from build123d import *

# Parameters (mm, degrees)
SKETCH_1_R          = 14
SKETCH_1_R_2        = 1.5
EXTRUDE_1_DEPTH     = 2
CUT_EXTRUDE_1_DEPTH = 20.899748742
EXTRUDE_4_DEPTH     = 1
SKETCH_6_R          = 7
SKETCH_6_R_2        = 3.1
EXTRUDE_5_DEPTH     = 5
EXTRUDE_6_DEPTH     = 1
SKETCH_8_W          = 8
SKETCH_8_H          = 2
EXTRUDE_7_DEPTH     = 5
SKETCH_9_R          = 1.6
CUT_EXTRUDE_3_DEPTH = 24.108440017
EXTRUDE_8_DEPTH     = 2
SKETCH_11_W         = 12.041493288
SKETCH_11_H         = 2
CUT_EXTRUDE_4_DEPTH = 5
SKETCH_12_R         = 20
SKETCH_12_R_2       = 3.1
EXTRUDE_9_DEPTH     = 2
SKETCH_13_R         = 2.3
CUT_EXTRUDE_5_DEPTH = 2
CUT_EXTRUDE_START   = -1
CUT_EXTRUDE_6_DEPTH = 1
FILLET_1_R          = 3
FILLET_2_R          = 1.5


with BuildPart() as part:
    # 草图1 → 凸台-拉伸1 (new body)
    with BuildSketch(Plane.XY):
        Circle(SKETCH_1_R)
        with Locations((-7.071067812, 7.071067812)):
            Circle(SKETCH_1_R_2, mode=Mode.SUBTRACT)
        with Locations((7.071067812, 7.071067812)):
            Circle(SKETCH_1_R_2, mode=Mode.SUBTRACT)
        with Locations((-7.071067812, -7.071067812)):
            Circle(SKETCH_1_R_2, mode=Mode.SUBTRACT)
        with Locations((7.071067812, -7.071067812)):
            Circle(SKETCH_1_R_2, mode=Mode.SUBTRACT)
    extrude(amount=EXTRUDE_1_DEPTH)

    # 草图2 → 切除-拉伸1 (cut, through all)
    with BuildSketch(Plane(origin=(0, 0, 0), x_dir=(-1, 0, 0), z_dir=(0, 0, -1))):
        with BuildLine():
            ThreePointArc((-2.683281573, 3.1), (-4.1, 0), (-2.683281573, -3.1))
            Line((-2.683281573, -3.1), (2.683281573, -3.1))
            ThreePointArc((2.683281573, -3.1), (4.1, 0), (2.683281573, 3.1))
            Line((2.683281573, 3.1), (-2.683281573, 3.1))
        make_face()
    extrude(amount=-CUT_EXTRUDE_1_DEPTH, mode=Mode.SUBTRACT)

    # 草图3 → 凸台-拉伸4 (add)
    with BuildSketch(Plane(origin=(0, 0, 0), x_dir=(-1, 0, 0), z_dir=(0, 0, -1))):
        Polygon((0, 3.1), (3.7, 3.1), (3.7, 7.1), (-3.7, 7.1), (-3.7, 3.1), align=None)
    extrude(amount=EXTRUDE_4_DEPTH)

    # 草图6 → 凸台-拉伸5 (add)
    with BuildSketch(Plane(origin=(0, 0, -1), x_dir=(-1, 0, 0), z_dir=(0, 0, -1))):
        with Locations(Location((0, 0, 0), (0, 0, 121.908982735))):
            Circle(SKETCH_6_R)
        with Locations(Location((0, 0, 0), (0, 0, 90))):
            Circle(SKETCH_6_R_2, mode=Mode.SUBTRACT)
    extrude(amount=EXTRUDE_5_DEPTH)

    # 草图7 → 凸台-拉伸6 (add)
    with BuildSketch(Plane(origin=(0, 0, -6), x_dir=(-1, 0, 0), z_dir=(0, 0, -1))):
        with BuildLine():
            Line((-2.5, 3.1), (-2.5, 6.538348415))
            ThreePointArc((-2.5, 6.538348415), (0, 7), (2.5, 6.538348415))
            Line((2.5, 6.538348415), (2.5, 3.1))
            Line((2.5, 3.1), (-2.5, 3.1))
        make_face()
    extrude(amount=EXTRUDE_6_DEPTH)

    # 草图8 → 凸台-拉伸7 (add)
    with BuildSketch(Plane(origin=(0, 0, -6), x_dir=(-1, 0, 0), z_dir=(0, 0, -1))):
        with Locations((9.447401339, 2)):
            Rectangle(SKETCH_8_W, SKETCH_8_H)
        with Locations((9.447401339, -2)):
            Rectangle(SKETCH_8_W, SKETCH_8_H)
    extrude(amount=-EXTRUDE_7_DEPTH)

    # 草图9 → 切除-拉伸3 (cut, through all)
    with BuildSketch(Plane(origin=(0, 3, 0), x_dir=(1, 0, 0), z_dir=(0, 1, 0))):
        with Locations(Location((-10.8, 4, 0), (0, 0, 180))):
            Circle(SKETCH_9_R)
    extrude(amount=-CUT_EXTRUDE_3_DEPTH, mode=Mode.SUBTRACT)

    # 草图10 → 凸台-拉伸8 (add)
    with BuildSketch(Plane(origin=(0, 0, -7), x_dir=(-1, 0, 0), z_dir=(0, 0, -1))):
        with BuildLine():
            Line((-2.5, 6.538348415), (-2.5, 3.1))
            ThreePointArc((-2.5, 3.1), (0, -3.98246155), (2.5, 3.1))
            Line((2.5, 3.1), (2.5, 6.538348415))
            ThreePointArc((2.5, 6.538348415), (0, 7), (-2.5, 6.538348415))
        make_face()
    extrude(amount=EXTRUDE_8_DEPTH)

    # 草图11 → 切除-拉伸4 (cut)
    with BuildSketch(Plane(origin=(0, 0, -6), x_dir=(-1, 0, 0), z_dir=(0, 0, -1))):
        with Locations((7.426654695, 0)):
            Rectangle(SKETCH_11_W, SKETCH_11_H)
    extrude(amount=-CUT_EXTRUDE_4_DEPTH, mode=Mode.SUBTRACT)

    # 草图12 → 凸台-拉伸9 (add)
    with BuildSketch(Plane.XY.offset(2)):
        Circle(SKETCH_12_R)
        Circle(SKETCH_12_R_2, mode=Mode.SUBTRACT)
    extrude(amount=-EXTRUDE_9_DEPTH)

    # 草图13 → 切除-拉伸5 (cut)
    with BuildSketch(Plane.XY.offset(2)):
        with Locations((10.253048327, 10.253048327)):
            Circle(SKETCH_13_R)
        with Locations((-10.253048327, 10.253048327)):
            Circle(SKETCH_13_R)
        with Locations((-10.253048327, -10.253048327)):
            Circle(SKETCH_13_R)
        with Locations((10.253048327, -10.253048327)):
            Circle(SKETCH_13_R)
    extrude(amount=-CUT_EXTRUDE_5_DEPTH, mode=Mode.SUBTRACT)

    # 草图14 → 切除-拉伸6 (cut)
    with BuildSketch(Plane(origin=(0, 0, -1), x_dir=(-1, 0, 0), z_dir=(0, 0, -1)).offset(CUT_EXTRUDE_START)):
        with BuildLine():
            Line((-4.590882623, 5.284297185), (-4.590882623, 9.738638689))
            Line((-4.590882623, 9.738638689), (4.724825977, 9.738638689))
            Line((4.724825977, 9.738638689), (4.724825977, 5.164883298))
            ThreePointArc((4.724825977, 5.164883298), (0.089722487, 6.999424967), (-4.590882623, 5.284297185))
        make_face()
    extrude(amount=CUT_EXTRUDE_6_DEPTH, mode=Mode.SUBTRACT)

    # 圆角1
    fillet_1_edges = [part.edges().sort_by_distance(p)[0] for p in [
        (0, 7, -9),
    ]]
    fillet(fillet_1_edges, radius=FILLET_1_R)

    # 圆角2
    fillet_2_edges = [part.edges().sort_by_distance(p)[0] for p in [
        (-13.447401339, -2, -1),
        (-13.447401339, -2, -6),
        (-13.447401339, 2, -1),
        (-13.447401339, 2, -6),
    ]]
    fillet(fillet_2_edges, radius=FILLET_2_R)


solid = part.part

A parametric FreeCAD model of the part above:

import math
import FreeCAD as App
import Part
import Sketcher

V = App.Vector


def edges_at(feature, points):
    """Names of the edges that pass closest to the given points."""
    edges = feature.Shape.Edges
    near = lambda p: min(range(len(edges)), key=lambda i: edges[i].distToShape(Part.Vertex(*p))[0])
    return sorted({f"Edge{near(p) + 1}" for p in points})

doc = App.newDocument("Part")
params = doc.addObject("Spreadsheet::Sheet", "Params")
for row, (alias, value) in enumerate([
    ("sketch1_diameter", "28 mm"),
    ("sketch1_diameter2", "3 mm"),
    ("pad1_length", "2 mm"),
    ("sketch2_radius", "4.1 mm"),
    ("sketch3_height", "4 mm"),
    ("sketch3_width", "7.4 mm"),
    ("pad2_length", "1 mm"),
    ("sketch4_diameter", "14 mm"),
    ("sketch4_diameter2", "6.2 mm"),
    ("pad3_length", "5 mm"),
    ("sketch5_radius", "7 mm"),
    ("sketch5_width", "5 mm"),
    ("pad4_length", "1 mm"),
    ("sketch6_width", "8 mm"),
    ("sketch6_height", "2 mm"),
    ("pad5_length", "5 mm"),
    ("sketch7_diameter", "3.2 mm"),
    ("sketch8_radius", "7 mm"),
    ("pad6_length", "2 mm"),
    ("sketch9_height", "2 mm"),
    ("pocket3_length", "5 mm"),
    ("sketch10_diameter", "40 mm"),
    ("sketch10_diameter2", "6.2 mm"),
    ("pad7_length", "2 mm"),
    ("sketch11_diameter", "4.6 mm"),
    ("pocket4_length", "2 mm"),
    ("sketch12_radius", "7 mm"),
    ("pocket5_length", "1 mm"),
    ("fillet_radius", "3 mm"),
    ("fillet2_radius", "1.5 mm"),
], start=1):
    params.set(f"A{row}", alias)
    params.set(f"B{row}", "=" + value)
    params.setAlias(f"B{row}", alias)

body = doc.addObject("PartDesign::Body", "Body")

# Sketch on XY plane
sketch1 = body.newObject("Sketcher::SketchObject", "Sketch")
sketch1.AttachmentSupport = (doc.getObject("XY_Plane"), [""])
sketch1.MapMode = "FlatFace"
sketch1.addGeometry(Part.Circle(V(0, 0, 0), V(0, 0, 1), 14), False)
sketch1.addGeometry(Part.Circle(V(-7.071068, -7.071068, 0), V(0, 0, 1), 1.5), False)
sketch1.addGeometry(Part.Circle(V(7.071068, -7.071068, 0), V(0, 0, 1), 1.5), False)
sketch1.addGeometry(Part.Circle(V(-7.071068, 7.071068, 0), V(0, 0, 1), 1.5), False)
sketch1.addGeometry(Part.Circle(V(7.071068, 7.071068, 0), V(0, 0, 1), 1.5), False)
sketch1.addConstraint(Sketcher.Constraint("Coincident", 0, 3, -1, 1))
sketch1.addConstraint(Sketcher.Constraint("Equal", 1, 2))
sketch1.addConstraint(Sketcher.Constraint("Equal", 2, 3))
sketch1.addConstraint(Sketcher.Constraint("Equal", 3, 4))
sketch1.addConstraint(Sketcher.Constraint("Symmetric", 2, 3, 3, 3, -1, 1))
sketch1.addConstraint(Sketcher.Constraint("Symmetric", 1, 3, 4, 3, -1, 1))
sketch1.addConstraint(Sketcher.Constraint("Symmetric", 1, 3, 2, 3, -2))
sketch1.addConstraint(Sketcher.Constraint("Diameter", 0, 28.0))
sketch1.addConstraint(Sketcher.Constraint("Diameter", 1, 3.0))
sketch1.addConstraint(Sketcher.Constraint("DistanceX", 1, 3, -1, 1, 7.071068))
sketch1.addConstraint(Sketcher.Constraint("DistanceY", 1, 3, -1, 1, 7.071068))
sketch1.setExpression("Constraints[7]", "Params.sketch1_diameter")
sketch1.setExpression("Constraints[8]", "Params.sketch1_diameter2")
pad1 = body.newObject("PartDesign::Pad", "Pad")
pad1.Profile = sketch1
pad1.setExpression("Length", "Params.pad1_length")

# Sketch on XY plane
sketch2 = body.newObject("Sketcher::SketchObject", "Sketch001")
sketch2.AttachmentSupport = (doc.getObject("XY_Plane"), [""])
sketch2.MapMode = "FlatFace"
sketch2.addGeometry(Part.ArcOfCircle(Part.Circle(V(0, 0, 0), V(0, 0, 1), 4.1), math.radians(-49.121365), math.radians(49.121365)), False)
sketch2.addGeometry(Part.LineSegment(V(2.683282, -3.1, 0), V(-2.683282, -3.1, 0)), False)
sketch2.addGeometry(Part.ArcOfCircle(Part.Circle(V(0, 0, 0), V(0, 0, 1), 4.1), math.radians(130.878635), math.radians(229.121365)), False)
sketch2.addGeometry(Part.LineSegment(V(-2.683282, 3.1, 0), V(2.683282, 3.1, 0)), False)
sketch2.addConstraint(Sketcher.Constraint("Coincident", 0, 1, 1, 1))
sketch2.addConstraint(Sketcher.Constraint("Coincident", 1, 2, 2, 2))
sketch2.addConstraint(Sketcher.Constraint("Coincident", 2, 1, 3, 1))
sketch2.addConstraint(Sketcher.Constraint("Coincident", 3, 2, 0, 2))
sketch2.addConstraint(Sketcher.Constraint("Horizontal", 1))
sketch2.addConstraint(Sketcher.Constraint("Horizontal", 3))
sketch2.addConstraint(Sketcher.Constraint("Coincident", 0, 3, -1, 1))
sketch2.addConstraint(Sketcher.Constraint("Coincident", 2, 3, -1, 1))
sketch2.addConstraint(Sketcher.Constraint("Equal", 0, 2))
sketch2.addConstraint(Sketcher.Constraint("Vertical", 1, 2, 2, 1))
sketch2.addConstraint(Sketcher.Constraint("Radius", 0, 4.1))
sketch2.addConstraint(Sketcher.Constraint("DistanceY", 0, 1, -1, 1, 3.1))
sketch2.setExpression("Constraints[10]", "Params.sketch2_radius")
pocket1 = body.newObject("PartDesign::Pocket", "Pocket")
pocket1.Profile = sketch2
pocket1.Type = "ThroughAll"
pocket1.Reversed = True

# Sketch on XY plane
sketch3 = body.newObject("Sketcher::SketchObject", "Sketch002")
sketch3.AttachmentSupport = (doc.getObject("XY_Plane"), [""])
sketch3.MapMode = "FlatFace"
sketch3.addGeometry(Part.LineSegment(V(-3.7, 3.1, 0), V(-3.7, 7.1, 0)), False)
sketch3.addGeometry(Part.LineSegment(V(-3.7, 7.1, 0), V(3.7, 7.1, 0)), False)
sketch3.addGeometry(Part.LineSegment(V(3.7, 7.1, 0), V(3.7, 3.1, 0)), False)
sketch3.addGeometry(Part.LineSegment(V(3.7, 3.1, 0), V(-3.7, 3.1, 0)), False)
sketch3.addConstraint(Sketcher.Constraint("Coincident", 0, 2, 1, 1))
sketch3.addConstraint(Sketcher.Constraint("Coincident", 1, 2, 2, 1))
sketch3.addConstraint(Sketcher.Constraint("Coincident", 2, 2, 3, 1))
sketch3.addConstraint(Sketcher.Constraint("Coincident", 3, 2, 0, 1))
sketch3.addConstraint(Sketcher.Constraint("Vertical", 0))
sketch3.addConstraint(Sketcher.Constraint("Horizontal", 1))
sketch3.addConstraint(Sketcher.Constraint("Vertical", 2))
sketch3.addConstraint(Sketcher.Constraint("Horizontal", 3))
sketch3.addConstraint(Sketcher.Constraint("DistanceY", 0, 1, 0, 2, 4.0))
sketch3.addConstraint(Sketcher.Constraint("DistanceX", 1, 1, 1, 2, 7.4))
sketch3.addConstraint(Sketcher.Constraint("DistanceX", 0, 2, -1, 1, 3.7))
sketch3.addConstraint(Sketcher.Constraint("DistanceY", -1, 1, 0, 2, 7.1))
sketch3.setExpression("Constraints[8]", "Params.sketch3_height")
sketch3.setExpression("Constraints[9]", "Params.sketch3_width")
pad2 = body.newObject("PartDesign::Pad", "Pad001")
pad2.Profile = sketch3
pad2.setExpression("Length", "Params.pad2_length")
pad2.Reversed = True

# Sketch on XY plane
sketch4 = body.newObject("Sketcher::SketchObject", "Sketch003")
sketch4.AttachmentSupport = (doc.getObject("XY_Plane"), [""])
sketch4.MapMode = "FlatFace"
sketch4.AttachmentOffset = App.Placement(V(0, 0, -1), App.Rotation())
sketch4.addGeometry(Part.Circle(V(0, 0, 0), V(0, 0, 1), 7), False)
sketch4.addGeometry(Part.Circle(V(0, 0, 0), V(0, 0, 1), 3.1), False)
sketch4.addConstraint(Sketcher.Constraint("Coincident", 0, 3, -1, 1))
sketch4.addConstraint(Sketcher.Constraint("Coincident", 1, 3, -1, 1))
sketch4.addConstraint(Sketcher.Constraint("Diameter", 0, 14.0))
sketch4.addConstraint(Sketcher.Constraint("Diameter", 1, 6.2))
sketch4.setExpression("Constraints[2]", "Params.sketch4_diameter")
sketch4.setExpression("Constraints[3]", "Params.sketch4_diameter2")
pad3 = body.newObject("PartDesign::Pad", "Pad002")
pad3.Profile = sketch4
pad3.setExpression("Length", "Params.pad3_length")
pad3.Reversed = True

# Sketch on XY plane
sketch5 = body.newObject("Sketcher::SketchObject", "Sketch004")
sketch5.AttachmentSupport = (doc.getObject("XY_Plane"), [""])
sketch5.MapMode = "FlatFace"
sketch5.AttachmentOffset = App.Placement(V(0, 0, -6), App.Rotation())
sketch5.addGeometry(Part.LineSegment(V(2.5, 6.538348, 0), V(2.5, 3.1, 0)), False)
sketch5.addGeometry(Part.LineSegment(V(2.5, 3.1, 0), V(-2.5, 3.1, 0)), False)
sketch5.addGeometry(Part.LineSegment(V(-2.5, 3.1, 0), V(-2.5, 6.538348, 0)), False)
sketch5.addGeometry(Part.ArcOfCircle(Part.Circle(V(0, 0, 0), V(0, 0, 1), 7), math.radians(69.075168), math.radians(110.924832)), False)
sketch5.addConstraint(Sketcher.Constraint("Coincident", 0, 2, 1, 1))
sketch5.addConstraint(Sketcher.Constraint("Coincident", 1, 2, 2, 1))
sketch5.addConstraint(Sketcher.Constraint("Coincident", 2, 2, 3, 2))
sketch5.addConstraint(Sketcher.Constraint("Coincident", 3, 1, 0, 1))
sketch5.addConstraint(Sketcher.Constraint("Vertical", 0))
sketch5.addConstraint(Sketcher.Constraint("Horizontal", 1))
sketch5.addConstraint(Sketcher.Constraint("Vertical", 2))
sketch5.addConstraint(Sketcher.Constraint("Coincident", 3, 3, -1, 1))
sketch5.addConstraint(Sketcher.Constraint("Horizontal", 2, 2, 3, 1))
sketch5.addConstraint(Sketcher.Constraint("Radius", 3, 7.0))
sketch5.addConstraint(Sketcher.Constraint("DistanceX", 1, 2, 1, 1, 5.0))
sketch5.addConstraint(Sketcher.Constraint("DistanceY", -1, 1, 0, 2, 3.1))
sketch5.setExpression("Constraints[9]", "Params.sketch5_radius")
sketch5.setExpression("Constraints[10]", "Params.sketch5_width")
pad4 = body.newObject("PartDesign::Pad", "Pad003")
pad4.Profile = sketch5
pad4.setExpression("Length", "Params.pad4_length")
pad4.Reversed = True

# Sketch on XY plane
sketch6 = body.newObject("Sketcher::SketchObject", "Sketch005")
sketch6.AttachmentSupport = (doc.getObject("XY_Plane"), [""])
sketch6.MapMode = "FlatFace"
sketch6.AttachmentOffset = App.Placement(V(0, 0, -6), App.Rotation())
sketch6.addGeometry(Part.LineSegment(V(-5.447401, 3, 0), V(-5.447401, 1, 0)), False)
sketch6.addGeometry(Part.LineSegment(V(-5.447401, 1, 0), V(-13.447401, 1, 0)), False)
sketch6.addGeometry(Part.LineSegment(V(-13.447401, 1, 0), V(-13.447401, 3, 0)), False)
sketch6.addGeometry(Part.LineSegment(V(-13.447401, 3, 0), V(-5.447401, 3, 0)), False)
sketch6.addGeometry(Part.LineSegment(V(-5.447401, -1, 0), V(-5.447401, -3, 0)), False)
sketch6.addGeometry(Part.LineSegment(V(-5.447401, -3, 0), V(-13.447401, -3, 0)), False)
sketch6.addGeometry(Part.LineSegment(V(-13.447401, -3, 0), V(-13.447401, -1, 0)), False)
sketch6.addGeometry(Part.LineSegment(V(-13.447401, -1, 0), V(-5.447401, -1, 0)), False)
sketch6.addConstraint(Sketcher.Constraint("Coincident", 0, 2, 1, 1))
sketch6.addConstraint(Sketcher.Constraint("Coincident", 1, 2, 2, 1))
sketch6.addConstraint(Sketcher.Constraint("Coincident", 2, 2, 3, 1))
sketch6.addConstraint(Sketcher.Constraint("Coincident", 3, 2, 0, 1))
sketch6.addConstraint(Sketcher.Constraint("Coincident", 4, 2, 5, 1))
sketch6.addConstraint(Sketcher.Constraint("Coincident", 5, 2, 6, 1))
sketch6.addConstraint(Sketcher.Constraint("Coincident", 6, 2, 7, 1))
sketch6.addConstraint(Sketcher.Constraint("Coincident", 7, 2, 4, 1))
sketch6.addConstraint(Sketcher.Constraint("Vertical", 0))
sketch6.addConstraint(Sketcher.Constraint("Horizontal", 1))
sketch6.addConstraint(Sketcher.Constraint("Vertical", 2))
sketch6.addConstraint(Sketcher.Constraint("Horizontal", 3))
sketch6.addConstraint(Sketcher.Constraint("Vertical", 4))
sketch6.addConstraint(Sketcher.Constraint("Horizontal", 5))
sketch6.addConstraint(Sketcher.Constraint("Vertical", 6))
sketch6.addConstraint(Sketcher.Constraint("Horizontal", 7))
sketch6.addConstraint(Sketcher.Constraint("Symmetric", 3, 2, 4, 2, -1))
sketch6.addConstraint(Sketcher.Constraint("Symmetric", 1, 2, 6, 2, -1))
sketch6.addConstraint(Sketcher.Constraint("DistanceX", 1, 2, 1, 1, 8.0))
sketch6.addConstraint(Sketcher.Constraint("DistanceY", 0, 2, 0, 1, 2.0))
sketch6.addConstraint(Sketcher.Constraint("DistanceY", -1, 1, 0, 2, 1.0))
sketch6.addConstraint(Sketcher.Constraint("DistanceX", 0, 2, -1, 1, 5.447401))
sketch6.setExpression("Constraints[18]", "Params.sketch6_width")
sketch6.setExpression("Constraints[19]", "Params.sketch6_height")
pad5 = body.newObject("PartDesign::Pad", "Pad004")
pad5.Profile = sketch6
pad5.setExpression("Length", "Params.pad5_length")

# Sketch on XZ plane
sketch7 = body.newObject("Sketcher::SketchObject", "Sketch006")
sketch7.AttachmentSupport = (doc.getObject("XZ_Plane"), [""])
sketch7.MapMode = "FlatFace"
sketch7.AttachmentOffset = App.Placement(V(0, 0, -3), App.Rotation())
sketch7.addGeometry(Part.Circle(V(-10.8, -4, 0), V(0, 0, 1), 1.6), False)
sketch7.addConstraint(Sketcher.Constraint("Diameter", 0, 3.2))
sketch7.addConstraint(Sketcher.Constraint("DistanceY", 0, 3, -1, 1, 4.0))
sketch7.addConstraint(Sketcher.Constraint("DistanceX", 0, 3, -1, 1, 10.8))
sketch7.setExpression("Constraints[0]", "Params.sketch7_diameter")
pocket2 = body.newObject("PartDesign::Pocket", "Pocket001")
pocket2.Profile = sketch7
pocket2.Type = "ThroughAll"
pocket2.Reversed = True

# Sketch on XY plane
sketch8 = body.newObject("Sketcher::SketchObject", "Sketch007")
sketch8.AttachmentSupport = (doc.getObject("XY_Plane"), [""])
sketch8.MapMode = "FlatFace"
sketch8.AttachmentOffset = App.Placement(V(0, 0, -7), App.Rotation())
sketch8.addGeometry(Part.LineSegment(V(2.5, 6.538348, 0), V(2.5, 3.1, 0)), False)
sketch8.addGeometry(Part.ArcOfCircle(Part.Circle(V(0, 0, 0), V(0, 0, 1), 3.982462), math.radians(128.884496), math.radians(411.115504)), False)
sketch8.addGeometry(Part.LineSegment(V(-2.5, 3.1, 0), V(-2.5, 6.538348, 0)), False)
sketch8.addGeometry(Part.ArcOfCircle(Part.Circle(V(0, 0, 0), V(0, 0, 1), 7), math.radians(69.075168), math.radians(110.924832)), False)
sketch8.addConstraint(Sketcher.Constraint("Coincident", 0, 2, 1, 2))
sketch8.addConstraint(Sketcher.Constraint("Coincident", 1, 1, 2, 1))
sketch8.addConstraint(Sketcher.Constraint("Coincident", 2, 2, 3, 2))
sketch8.addConstraint(Sketcher.Constraint("Coincident", 3, 1, 0, 1))
sketch8.addConstraint(Sketcher.Constraint("Vertical", 0))
sketch8.addConstraint(Sketcher.Constraint("Vertical", 2))
sketch8.addConstraint(Sketcher.Constraint("Coincident", 1, 3, -1, 1))
sketch8.addConstraint(Sketcher.Constraint("Coincident", 3, 3, -1, 1))
sketch8.addConstraint(Sketcher.Constraint("Horizontal", 0, 2, 1, 1))
sketch8.addConstraint(Sketcher.Constraint("Radius", 3, 7.0))
sketch8.addConstraint(Sketcher.Constraint("DistanceX", 1, 1, 0, 2, 5.0))
sketch8.addConstraint(Sketcher.Constraint("DistanceY", -1, 1, 0, 2, 3.1))
sketch8.setExpression("Constraints[9]", "Params.sketch8_radius")
pad6 = body.newObject("PartDesign::Pad", "Pad005")
pad6.Profile = sketch8
pad6.setExpression("Length", "Params.pad6_length")
pad6.Reversed = True

# Sketch on XY plane
sketch9 = body.newObject("Sketcher::SketchObject", "Sketch008")
sketch9.AttachmentSupport = (doc.getObject("XY_Plane"), [""])
sketch9.MapMode = "FlatFace"
sketch9.AttachmentOffset = App.Placement(V(0, 0, -6), App.Rotation())
sketch9.addGeometry(Part.LineSegment(V(-1.405908, 1, 0), V(-1.405908, -1, 0)), False)
sketch9.addGeometry(Part.LineSegment(V(-1.405908, -1, 0), V(-13.447401, -1, 0)), False)
sketch9.addGeometry(Part.LineSegment(V(-13.447401, -1, 0), V(-13.447401, 1, 0)), False)
sketch9.addGeometry(Part.LineSegment(V(-13.447401, 1, 0), V(-1.405908, 1, 0)), False)
sketch9.addConstraint(Sketcher.Constraint("Coincident", 0, 2, 1, 1))
sketch9.addConstraint(Sketcher.Constraint("Coincident", 1, 2, 2, 1))
sketch9.addConstraint(Sketcher.Constraint("Coincident", 2, 2, 3, 1))
sketch9.addConstraint(Sketcher.Constraint("Coincident", 3, 2, 0, 1))
sketch9.addConstraint(Sketcher.Constraint("Vertical", 0))
sketch9.addConstraint(Sketcher.Constraint("Horizontal", 1))
sketch9.addConstraint(Sketcher.Constraint("Vertical", 2))
sketch9.addConstraint(Sketcher.Constraint("Horizontal", 3))
sketch9.addConstraint(Sketcher.Constraint("DistanceY", 0, 2, 0, 1, 2.0))
sketch9.addConstraint(Sketcher.Constraint("DistanceY", 0, 2, -1, 1, 1.0))
sketch9.addConstraint(Sketcher.Constraint("DistanceX", 1, 2, -1, 1, 13.447401))
sketch9.addConstraint(Sketcher.Constraint("DistanceX", 1, 2, 1, 1, 12.041493))
sketch9.setExpression("Constraints[8]", "Params.sketch9_height")
pocket3 = body.newObject("PartDesign::Pocket", "Pocket002")
pocket3.Profile = sketch9
pocket3.setExpression("Length", "Params.pocket3_length")
pocket3.Reversed = True

# Sketch on XY plane
sketch10 = body.newObject("Sketcher::SketchObject", "Sketch009")
sketch10.AttachmentSupport = (doc.getObject("XY_Plane"), [""])
sketch10.MapMode = "FlatFace"
sketch10.AttachmentOffset = App.Placement(V(0, 0, 2), App.Rotation())
sketch10.addGeometry(Part.Circle(V(0, 0, 0), V(0, 0, 1), 20), False)
sketch10.addGeometry(Part.Circle(V(0, 0, 0), V(0, 0, 1), 3.1), False)
sketch10.addConstraint(Sketcher.Constraint("Coincident", 0, 3, -1, 1))
sketch10.addConstraint(Sketcher.Constraint("Coincident", 1, 3, -1, 1))
sketch10.addConstraint(Sketcher.Constraint("Diameter", 0, 40.0))
sketch10.addConstraint(Sketcher.Constraint("Diameter", 1, 6.2))
sketch10.setExpression("Constraints[2]", "Params.sketch10_diameter")
sketch10.setExpression("Constraints[3]", "Params.sketch10_diameter2")
pad7 = body.newObject("PartDesign::Pad", "Pad006")
pad7.Profile = sketch10
pad7.setExpression("Length", "Params.pad7_length")
pad7.Reversed = True

# Sketch on XY plane
sketch11 = body.newObject("Sketcher::SketchObject", "Sketch010")
sketch11.AttachmentSupport = (doc.getObject("XY_Plane"), [""])
sketch11.MapMode = "FlatFace"
sketch11.AttachmentOffset = App.Placement(V(0, 0, 2), App.Rotation())
sketch11.addGeometry(Part.Circle(V(10.253048, 10.253048, 0), V(0, 0, 1), 2.3), False)
sketch11.addGeometry(Part.Circle(V(-10.253048, 10.253048, 0), V(0, 0, 1), 2.3), False)
sketch11.addGeometry(Part.Circle(V(-10.253048, -10.253048, 0), V(0, 0, 1), 2.3), False)
sketch11.addGeometry(Part.Circle(V(10.253048, -10.253048, 0), V(0, 0, 1), 2.3), False)
sketch11.addConstraint(Sketcher.Constraint("Equal", 0, 1))
sketch11.addConstraint(Sketcher.Constraint("Equal", 1, 2))
sketch11.addConstraint(Sketcher.Constraint("Equal", 2, 3))
sketch11.addConstraint(Sketcher.Constraint("Symmetric", 0, 3, 2, 3, -1, 1))
sketch11.addConstraint(Sketcher.Constraint("Symmetric", 1, 3, 3, 3, -1, 1))
sketch11.addConstraint(Sketcher.Constraint("Symmetric", 0, 3, 1, 3, -2))
sketch11.addConstraint(Sketcher.Constraint("Diameter", 0, 4.6))
sketch11.addConstraint(Sketcher.Constraint("DistanceX", -1, 1, 0, 3, 10.253048))
sketch11.addConstraint(Sketcher.Constraint("DistanceY", -1, 1, 0, 3, 10.253048))
sketch11.setExpression("Constraints[6]", "Params.sketch11_diameter")
pocket4 = body.newObject("PartDesign::Pocket", "Pocket003")
pocket4.Profile = sketch11
pocket4.setExpression("Length", "Params.pocket4_length")

# Sketch on XY plane
sketch12 = body.newObject("Sketcher::SketchObject", "Sketch011")
sketch12.AttachmentSupport = (doc.getObject("XY_Plane"), [""])
sketch12.MapMode = "FlatFace"
sketch12.addGeometry(Part.LineSegment(V(4.590883, 9.738639, 0), V(4.590883, 5.284297, 0)), False)
sketch12.addGeometry(Part.ArcOfCircle(Part.Circle(V(0, 0, 0), V(0, 0, 1), 7), math.radians(49.016598), math.radians(132.45222)), False)
sketch12.addGeometry(Part.LineSegment(V(-4.724826, 5.164883, 0), V(-4.724826, 9.738639, 0)), False)
sketch12.addGeometry(Part.LineSegment(V(-4.724826, 9.738639, 0), V(4.590883, 9.738639, 0)), False)
sketch12.addConstraint(Sketcher.Constraint("Coincident", 0, 2, 1, 1))
sketch12.addConstraint(Sketcher.Constraint("Coincident", 1, 2, 2, 1))
sketch12.addConstraint(Sketcher.Constraint("Coincident", 2, 2, 3, 1))
sketch12.addConstraint(Sketcher.Constraint("Coincident", 3, 2, 0, 1))
sketch12.addConstraint(Sketcher.Constraint("Vertical", 0))
sketch12.addConstraint(Sketcher.Constraint("Vertical", 2))
sketch12.addConstraint(Sketcher.Constraint("Horizontal", 3))
sketch12.addConstraint(Sketcher.Constraint("Coincident", 1, 3, -1, 1))
sketch12.addConstraint(Sketcher.Constraint("Radius", 1, 7.0))
sketch12.addConstraint(Sketcher.Constraint("DistanceX", 3, 1, 3, 2, 9.315709))
sketch12.addConstraint(Sketcher.Constraint("DistanceY", 0, 2, 0, 1, 4.454342))
sketch12.addConstraint(Sketcher.Constraint("DistanceY", 2, 1, 2, 2, 4.573755))
sketch12.setExpression("Constraints[8]", "Params.sketch12_radius")
pocket5 = body.newObject("PartDesign::Pocket", "Pocket004")
pocket5.Profile = sketch12
pocket5.setExpression("Length", "Params.pocket5_length")
doc.recompute()

fillet = body.newObject("PartDesign::Fillet", "Fillet")
fillet.Base = (pocket5, edges_at(pocket5, [(0, 7, -9)]))
fillet.setExpression("Radius", "Params.fillet_radius")
doc.recompute()

fillet2 = body.newObject("PartDesign::Fillet", "Fillet001")
fillet2.Base = (fillet, edges_at(fillet, [
    (-13.447, -2, -1),
    (-13.447, -2, -6),
    (-13.447, 2, -1),
    (-13.447, 2, -6),
]))
fillet2.setExpression("Radius", "Params.fillet2_radius")

doc.recompute()
